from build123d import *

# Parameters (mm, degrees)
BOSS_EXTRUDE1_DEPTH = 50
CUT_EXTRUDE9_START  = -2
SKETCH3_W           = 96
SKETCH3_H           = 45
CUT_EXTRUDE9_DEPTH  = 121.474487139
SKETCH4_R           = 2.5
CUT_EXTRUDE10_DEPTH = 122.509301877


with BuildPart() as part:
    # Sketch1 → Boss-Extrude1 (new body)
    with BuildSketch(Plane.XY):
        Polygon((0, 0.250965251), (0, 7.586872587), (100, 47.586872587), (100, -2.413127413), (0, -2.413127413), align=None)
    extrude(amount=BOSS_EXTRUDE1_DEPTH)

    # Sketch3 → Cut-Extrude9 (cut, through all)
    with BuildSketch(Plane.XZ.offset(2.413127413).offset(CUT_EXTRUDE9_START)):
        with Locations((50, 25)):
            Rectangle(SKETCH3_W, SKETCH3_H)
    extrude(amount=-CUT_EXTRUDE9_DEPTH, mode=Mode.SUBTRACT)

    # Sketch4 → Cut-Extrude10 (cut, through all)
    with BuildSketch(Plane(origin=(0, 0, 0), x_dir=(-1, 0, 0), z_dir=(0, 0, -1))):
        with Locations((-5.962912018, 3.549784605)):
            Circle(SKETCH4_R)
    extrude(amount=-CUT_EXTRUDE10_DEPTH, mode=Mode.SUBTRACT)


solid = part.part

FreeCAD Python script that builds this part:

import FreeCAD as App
import Part
import Sketcher
Q = App.Units.Quantity

doc = App.newDocument("Part")
body = doc.addObject("PartDesign::Body", "Body")

# Sketch on XY plane
sketch1 = doc.addObject("Sketcher::SketchObject", "Sketch")
body.addObject(sketch1)
sketch1.AttachmentSupport = (doc.XY_Plane, [""])
sketch1.MapMode = "FlatFace"
sketch1.addGeometry(Part.LineSegment(App.Vector(0, 7.586873, 0), App.Vector(0, -2.413127, 0)), False)
sketch1.addGeometry(Part.LineSegment(App.Vector(0, -2.413127, 0), App.Vector(100, -2.413127, 0)), False)
sketch1.addGeometry(Part.LineSegment(App.Vector(100, -2.413127, 0), App.Vector(100, 47.586873, 0)), False)
sketch1.addGeometry(Part.LineSegment(App.Vector(100, 47.586873, 0), App.Vector(0, 7.586873, 0)), False)
sketch1.addConstraint(Sketcher.Constraint("Coincident", 0, 2, 1, 1))
sketch1.addConstraint(Sketcher.Constraint("Coincident", 1, 2, 2, 1))
sketch1.addConstraint(Sketcher.Constraint("Coincident", 2, 2, 3, 1))
sketch1.addConstraint(Sketcher.Constraint("Coincident", 3, 2, 0, 1))
sketch1.addConstraint(Sketcher.Constraint("Vertical", 0))
sketch1.addConstraint(Sketcher.Constraint("Horizontal", 1))
sketch1.addConstraint(Sketcher.Constraint("Vertical", 2))
sketch1.addConstraint(Sketcher.Constraint("PointOnObject", 0, 2, -2))
sketch1.addConstraint(Sketcher.Constraint("DistanceX", 1, 1, 1, 2, Q("100 mm")))
sketch1.addConstraint(Sketcher.Constraint("DistanceY", 0, 2, 0, 1, Q("10 mm")))
sketch1.addConstraint(Sketcher.Constraint("DistanceY", 2, 1, 2, 2, Q("50 mm")))
sketch1.addConstraint(Sketcher.Constraint("DistanceY", 0, 2, -1, 1, Q("2.413127 mm")))
pad1 = doc.addObject("PartDesign::Pad", "Pad")
body.addObject(pad1)
pad1.Profile = sketch1
pad1.Length = 50

# Sketch on XZ plane
sketch2 = doc.addObject("Sketcher::SketchObject", "Sketch001")
body.addObject(sketch2)
sketch2.AttachmentSupport = (doc.XZ_Plane, [""])
sketch2.MapMode = "FlatFace"
sketch2.AttachmentOffset = App.Placement(App.Vector(0, 0, 0.413127), App.Rotation())
sketch2.addGeometry(Part.LineSegment(App.Vector(2, 47.5, 0), App.Vector(2, 2.5, 0)), False)
sketch2.addGeometry(Part.LineSegment(App.Vector(2, 2.5, 0), App.Vector(98, 2.5, 0)), False)
sketch2.addGeometry(Part.LineSegment(App.Vector(98, 2.5, 0), App.Vector(98, 47.5, 0)), False)
sketch2.addGeometry(Part.LineSegment(App.Vector(98, 47.5, 0), App.Vector(2, 47.5, 0)), False)
sketch2.addConstraint(Sketcher.Constraint("Coincident", 0, 2, 1, 1))
sketch2.addConstraint(Sketcher.Constraint("Coincident", 1, 2, 2, 1))
sketch2.addConstraint(Sketcher.Constraint("Coincident", 2, 2, 3, 1))
sketch2.addConstraint(Sketcher.Constraint("Coincident", 3, 2, 0, 1))
sketch2.addConstraint(Sketcher.Constraint("Vertical", 0))
sketch2.addConstraint(Sketcher.Constraint("Horizontal", 1))
sketch2.addConstraint(Sketcher.Constraint("Vertical", 2))
sketch2.addConstraint(Sketcher.Constraint("Horizontal", 3))
sketch2.addConstraint(Sketcher.Constraint("DistanceX", 1, 1, 1, 2, Q("96 mm")))
sketch2.addConstraint(Sketcher.Constraint("DistanceY", 0, 2, 0, 1, Q("45 mm")))
sketch2.addConstraint(Sketcher.Constraint("DistanceX", -1, 1, 0, 2, Q("2 mm")))
sketch2.addConstraint(Sketcher.Constraint("DistanceY", -1, 1, 0, 2, Q("2.5 mm")))
pocket1 = doc.addObject("PartDesign::Pocket", "Pocket")
body.addObject(pocket1)
pocket1.Profile = sketch2
pocket1.Type = "ThroughAll"

# Sketch on XY plane
sketch3 = doc.addObject("Sketcher::SketchObject", "Sketch002")
body.addObject(sketch3)
sketch3.AttachmentSupport = (doc.XY_Plane, [""])
sketch3.MapMode = "FlatFace"
sketch3.addGeometry(Part.Circle(App.Vector(5.962912, 3.549785, 0), App.Vector(0, 0, 1), 2.5), False)
sketch3.addConstraint(Sketcher.Constraint("Diameter", 0, Q("5 mm")))
sketch3.addConstraint(Sketcher.Constraint("DistanceX", -1, 1, 0, 3, Q("5.962912 mm")))
sketch3.addConstraint(Sketcher.Constraint("DistanceY", -1, 1, 0, 3, Q("3.549785 mm")))
pocket2 = doc.addObject("PartDesign::Pocket", "Pocket001")
body.addObject(pocket2)
pocket2.Profile = sketch3
pocket2.Type = "ThroughAll"
pocket2.Reversed = True

doc.recompute()
